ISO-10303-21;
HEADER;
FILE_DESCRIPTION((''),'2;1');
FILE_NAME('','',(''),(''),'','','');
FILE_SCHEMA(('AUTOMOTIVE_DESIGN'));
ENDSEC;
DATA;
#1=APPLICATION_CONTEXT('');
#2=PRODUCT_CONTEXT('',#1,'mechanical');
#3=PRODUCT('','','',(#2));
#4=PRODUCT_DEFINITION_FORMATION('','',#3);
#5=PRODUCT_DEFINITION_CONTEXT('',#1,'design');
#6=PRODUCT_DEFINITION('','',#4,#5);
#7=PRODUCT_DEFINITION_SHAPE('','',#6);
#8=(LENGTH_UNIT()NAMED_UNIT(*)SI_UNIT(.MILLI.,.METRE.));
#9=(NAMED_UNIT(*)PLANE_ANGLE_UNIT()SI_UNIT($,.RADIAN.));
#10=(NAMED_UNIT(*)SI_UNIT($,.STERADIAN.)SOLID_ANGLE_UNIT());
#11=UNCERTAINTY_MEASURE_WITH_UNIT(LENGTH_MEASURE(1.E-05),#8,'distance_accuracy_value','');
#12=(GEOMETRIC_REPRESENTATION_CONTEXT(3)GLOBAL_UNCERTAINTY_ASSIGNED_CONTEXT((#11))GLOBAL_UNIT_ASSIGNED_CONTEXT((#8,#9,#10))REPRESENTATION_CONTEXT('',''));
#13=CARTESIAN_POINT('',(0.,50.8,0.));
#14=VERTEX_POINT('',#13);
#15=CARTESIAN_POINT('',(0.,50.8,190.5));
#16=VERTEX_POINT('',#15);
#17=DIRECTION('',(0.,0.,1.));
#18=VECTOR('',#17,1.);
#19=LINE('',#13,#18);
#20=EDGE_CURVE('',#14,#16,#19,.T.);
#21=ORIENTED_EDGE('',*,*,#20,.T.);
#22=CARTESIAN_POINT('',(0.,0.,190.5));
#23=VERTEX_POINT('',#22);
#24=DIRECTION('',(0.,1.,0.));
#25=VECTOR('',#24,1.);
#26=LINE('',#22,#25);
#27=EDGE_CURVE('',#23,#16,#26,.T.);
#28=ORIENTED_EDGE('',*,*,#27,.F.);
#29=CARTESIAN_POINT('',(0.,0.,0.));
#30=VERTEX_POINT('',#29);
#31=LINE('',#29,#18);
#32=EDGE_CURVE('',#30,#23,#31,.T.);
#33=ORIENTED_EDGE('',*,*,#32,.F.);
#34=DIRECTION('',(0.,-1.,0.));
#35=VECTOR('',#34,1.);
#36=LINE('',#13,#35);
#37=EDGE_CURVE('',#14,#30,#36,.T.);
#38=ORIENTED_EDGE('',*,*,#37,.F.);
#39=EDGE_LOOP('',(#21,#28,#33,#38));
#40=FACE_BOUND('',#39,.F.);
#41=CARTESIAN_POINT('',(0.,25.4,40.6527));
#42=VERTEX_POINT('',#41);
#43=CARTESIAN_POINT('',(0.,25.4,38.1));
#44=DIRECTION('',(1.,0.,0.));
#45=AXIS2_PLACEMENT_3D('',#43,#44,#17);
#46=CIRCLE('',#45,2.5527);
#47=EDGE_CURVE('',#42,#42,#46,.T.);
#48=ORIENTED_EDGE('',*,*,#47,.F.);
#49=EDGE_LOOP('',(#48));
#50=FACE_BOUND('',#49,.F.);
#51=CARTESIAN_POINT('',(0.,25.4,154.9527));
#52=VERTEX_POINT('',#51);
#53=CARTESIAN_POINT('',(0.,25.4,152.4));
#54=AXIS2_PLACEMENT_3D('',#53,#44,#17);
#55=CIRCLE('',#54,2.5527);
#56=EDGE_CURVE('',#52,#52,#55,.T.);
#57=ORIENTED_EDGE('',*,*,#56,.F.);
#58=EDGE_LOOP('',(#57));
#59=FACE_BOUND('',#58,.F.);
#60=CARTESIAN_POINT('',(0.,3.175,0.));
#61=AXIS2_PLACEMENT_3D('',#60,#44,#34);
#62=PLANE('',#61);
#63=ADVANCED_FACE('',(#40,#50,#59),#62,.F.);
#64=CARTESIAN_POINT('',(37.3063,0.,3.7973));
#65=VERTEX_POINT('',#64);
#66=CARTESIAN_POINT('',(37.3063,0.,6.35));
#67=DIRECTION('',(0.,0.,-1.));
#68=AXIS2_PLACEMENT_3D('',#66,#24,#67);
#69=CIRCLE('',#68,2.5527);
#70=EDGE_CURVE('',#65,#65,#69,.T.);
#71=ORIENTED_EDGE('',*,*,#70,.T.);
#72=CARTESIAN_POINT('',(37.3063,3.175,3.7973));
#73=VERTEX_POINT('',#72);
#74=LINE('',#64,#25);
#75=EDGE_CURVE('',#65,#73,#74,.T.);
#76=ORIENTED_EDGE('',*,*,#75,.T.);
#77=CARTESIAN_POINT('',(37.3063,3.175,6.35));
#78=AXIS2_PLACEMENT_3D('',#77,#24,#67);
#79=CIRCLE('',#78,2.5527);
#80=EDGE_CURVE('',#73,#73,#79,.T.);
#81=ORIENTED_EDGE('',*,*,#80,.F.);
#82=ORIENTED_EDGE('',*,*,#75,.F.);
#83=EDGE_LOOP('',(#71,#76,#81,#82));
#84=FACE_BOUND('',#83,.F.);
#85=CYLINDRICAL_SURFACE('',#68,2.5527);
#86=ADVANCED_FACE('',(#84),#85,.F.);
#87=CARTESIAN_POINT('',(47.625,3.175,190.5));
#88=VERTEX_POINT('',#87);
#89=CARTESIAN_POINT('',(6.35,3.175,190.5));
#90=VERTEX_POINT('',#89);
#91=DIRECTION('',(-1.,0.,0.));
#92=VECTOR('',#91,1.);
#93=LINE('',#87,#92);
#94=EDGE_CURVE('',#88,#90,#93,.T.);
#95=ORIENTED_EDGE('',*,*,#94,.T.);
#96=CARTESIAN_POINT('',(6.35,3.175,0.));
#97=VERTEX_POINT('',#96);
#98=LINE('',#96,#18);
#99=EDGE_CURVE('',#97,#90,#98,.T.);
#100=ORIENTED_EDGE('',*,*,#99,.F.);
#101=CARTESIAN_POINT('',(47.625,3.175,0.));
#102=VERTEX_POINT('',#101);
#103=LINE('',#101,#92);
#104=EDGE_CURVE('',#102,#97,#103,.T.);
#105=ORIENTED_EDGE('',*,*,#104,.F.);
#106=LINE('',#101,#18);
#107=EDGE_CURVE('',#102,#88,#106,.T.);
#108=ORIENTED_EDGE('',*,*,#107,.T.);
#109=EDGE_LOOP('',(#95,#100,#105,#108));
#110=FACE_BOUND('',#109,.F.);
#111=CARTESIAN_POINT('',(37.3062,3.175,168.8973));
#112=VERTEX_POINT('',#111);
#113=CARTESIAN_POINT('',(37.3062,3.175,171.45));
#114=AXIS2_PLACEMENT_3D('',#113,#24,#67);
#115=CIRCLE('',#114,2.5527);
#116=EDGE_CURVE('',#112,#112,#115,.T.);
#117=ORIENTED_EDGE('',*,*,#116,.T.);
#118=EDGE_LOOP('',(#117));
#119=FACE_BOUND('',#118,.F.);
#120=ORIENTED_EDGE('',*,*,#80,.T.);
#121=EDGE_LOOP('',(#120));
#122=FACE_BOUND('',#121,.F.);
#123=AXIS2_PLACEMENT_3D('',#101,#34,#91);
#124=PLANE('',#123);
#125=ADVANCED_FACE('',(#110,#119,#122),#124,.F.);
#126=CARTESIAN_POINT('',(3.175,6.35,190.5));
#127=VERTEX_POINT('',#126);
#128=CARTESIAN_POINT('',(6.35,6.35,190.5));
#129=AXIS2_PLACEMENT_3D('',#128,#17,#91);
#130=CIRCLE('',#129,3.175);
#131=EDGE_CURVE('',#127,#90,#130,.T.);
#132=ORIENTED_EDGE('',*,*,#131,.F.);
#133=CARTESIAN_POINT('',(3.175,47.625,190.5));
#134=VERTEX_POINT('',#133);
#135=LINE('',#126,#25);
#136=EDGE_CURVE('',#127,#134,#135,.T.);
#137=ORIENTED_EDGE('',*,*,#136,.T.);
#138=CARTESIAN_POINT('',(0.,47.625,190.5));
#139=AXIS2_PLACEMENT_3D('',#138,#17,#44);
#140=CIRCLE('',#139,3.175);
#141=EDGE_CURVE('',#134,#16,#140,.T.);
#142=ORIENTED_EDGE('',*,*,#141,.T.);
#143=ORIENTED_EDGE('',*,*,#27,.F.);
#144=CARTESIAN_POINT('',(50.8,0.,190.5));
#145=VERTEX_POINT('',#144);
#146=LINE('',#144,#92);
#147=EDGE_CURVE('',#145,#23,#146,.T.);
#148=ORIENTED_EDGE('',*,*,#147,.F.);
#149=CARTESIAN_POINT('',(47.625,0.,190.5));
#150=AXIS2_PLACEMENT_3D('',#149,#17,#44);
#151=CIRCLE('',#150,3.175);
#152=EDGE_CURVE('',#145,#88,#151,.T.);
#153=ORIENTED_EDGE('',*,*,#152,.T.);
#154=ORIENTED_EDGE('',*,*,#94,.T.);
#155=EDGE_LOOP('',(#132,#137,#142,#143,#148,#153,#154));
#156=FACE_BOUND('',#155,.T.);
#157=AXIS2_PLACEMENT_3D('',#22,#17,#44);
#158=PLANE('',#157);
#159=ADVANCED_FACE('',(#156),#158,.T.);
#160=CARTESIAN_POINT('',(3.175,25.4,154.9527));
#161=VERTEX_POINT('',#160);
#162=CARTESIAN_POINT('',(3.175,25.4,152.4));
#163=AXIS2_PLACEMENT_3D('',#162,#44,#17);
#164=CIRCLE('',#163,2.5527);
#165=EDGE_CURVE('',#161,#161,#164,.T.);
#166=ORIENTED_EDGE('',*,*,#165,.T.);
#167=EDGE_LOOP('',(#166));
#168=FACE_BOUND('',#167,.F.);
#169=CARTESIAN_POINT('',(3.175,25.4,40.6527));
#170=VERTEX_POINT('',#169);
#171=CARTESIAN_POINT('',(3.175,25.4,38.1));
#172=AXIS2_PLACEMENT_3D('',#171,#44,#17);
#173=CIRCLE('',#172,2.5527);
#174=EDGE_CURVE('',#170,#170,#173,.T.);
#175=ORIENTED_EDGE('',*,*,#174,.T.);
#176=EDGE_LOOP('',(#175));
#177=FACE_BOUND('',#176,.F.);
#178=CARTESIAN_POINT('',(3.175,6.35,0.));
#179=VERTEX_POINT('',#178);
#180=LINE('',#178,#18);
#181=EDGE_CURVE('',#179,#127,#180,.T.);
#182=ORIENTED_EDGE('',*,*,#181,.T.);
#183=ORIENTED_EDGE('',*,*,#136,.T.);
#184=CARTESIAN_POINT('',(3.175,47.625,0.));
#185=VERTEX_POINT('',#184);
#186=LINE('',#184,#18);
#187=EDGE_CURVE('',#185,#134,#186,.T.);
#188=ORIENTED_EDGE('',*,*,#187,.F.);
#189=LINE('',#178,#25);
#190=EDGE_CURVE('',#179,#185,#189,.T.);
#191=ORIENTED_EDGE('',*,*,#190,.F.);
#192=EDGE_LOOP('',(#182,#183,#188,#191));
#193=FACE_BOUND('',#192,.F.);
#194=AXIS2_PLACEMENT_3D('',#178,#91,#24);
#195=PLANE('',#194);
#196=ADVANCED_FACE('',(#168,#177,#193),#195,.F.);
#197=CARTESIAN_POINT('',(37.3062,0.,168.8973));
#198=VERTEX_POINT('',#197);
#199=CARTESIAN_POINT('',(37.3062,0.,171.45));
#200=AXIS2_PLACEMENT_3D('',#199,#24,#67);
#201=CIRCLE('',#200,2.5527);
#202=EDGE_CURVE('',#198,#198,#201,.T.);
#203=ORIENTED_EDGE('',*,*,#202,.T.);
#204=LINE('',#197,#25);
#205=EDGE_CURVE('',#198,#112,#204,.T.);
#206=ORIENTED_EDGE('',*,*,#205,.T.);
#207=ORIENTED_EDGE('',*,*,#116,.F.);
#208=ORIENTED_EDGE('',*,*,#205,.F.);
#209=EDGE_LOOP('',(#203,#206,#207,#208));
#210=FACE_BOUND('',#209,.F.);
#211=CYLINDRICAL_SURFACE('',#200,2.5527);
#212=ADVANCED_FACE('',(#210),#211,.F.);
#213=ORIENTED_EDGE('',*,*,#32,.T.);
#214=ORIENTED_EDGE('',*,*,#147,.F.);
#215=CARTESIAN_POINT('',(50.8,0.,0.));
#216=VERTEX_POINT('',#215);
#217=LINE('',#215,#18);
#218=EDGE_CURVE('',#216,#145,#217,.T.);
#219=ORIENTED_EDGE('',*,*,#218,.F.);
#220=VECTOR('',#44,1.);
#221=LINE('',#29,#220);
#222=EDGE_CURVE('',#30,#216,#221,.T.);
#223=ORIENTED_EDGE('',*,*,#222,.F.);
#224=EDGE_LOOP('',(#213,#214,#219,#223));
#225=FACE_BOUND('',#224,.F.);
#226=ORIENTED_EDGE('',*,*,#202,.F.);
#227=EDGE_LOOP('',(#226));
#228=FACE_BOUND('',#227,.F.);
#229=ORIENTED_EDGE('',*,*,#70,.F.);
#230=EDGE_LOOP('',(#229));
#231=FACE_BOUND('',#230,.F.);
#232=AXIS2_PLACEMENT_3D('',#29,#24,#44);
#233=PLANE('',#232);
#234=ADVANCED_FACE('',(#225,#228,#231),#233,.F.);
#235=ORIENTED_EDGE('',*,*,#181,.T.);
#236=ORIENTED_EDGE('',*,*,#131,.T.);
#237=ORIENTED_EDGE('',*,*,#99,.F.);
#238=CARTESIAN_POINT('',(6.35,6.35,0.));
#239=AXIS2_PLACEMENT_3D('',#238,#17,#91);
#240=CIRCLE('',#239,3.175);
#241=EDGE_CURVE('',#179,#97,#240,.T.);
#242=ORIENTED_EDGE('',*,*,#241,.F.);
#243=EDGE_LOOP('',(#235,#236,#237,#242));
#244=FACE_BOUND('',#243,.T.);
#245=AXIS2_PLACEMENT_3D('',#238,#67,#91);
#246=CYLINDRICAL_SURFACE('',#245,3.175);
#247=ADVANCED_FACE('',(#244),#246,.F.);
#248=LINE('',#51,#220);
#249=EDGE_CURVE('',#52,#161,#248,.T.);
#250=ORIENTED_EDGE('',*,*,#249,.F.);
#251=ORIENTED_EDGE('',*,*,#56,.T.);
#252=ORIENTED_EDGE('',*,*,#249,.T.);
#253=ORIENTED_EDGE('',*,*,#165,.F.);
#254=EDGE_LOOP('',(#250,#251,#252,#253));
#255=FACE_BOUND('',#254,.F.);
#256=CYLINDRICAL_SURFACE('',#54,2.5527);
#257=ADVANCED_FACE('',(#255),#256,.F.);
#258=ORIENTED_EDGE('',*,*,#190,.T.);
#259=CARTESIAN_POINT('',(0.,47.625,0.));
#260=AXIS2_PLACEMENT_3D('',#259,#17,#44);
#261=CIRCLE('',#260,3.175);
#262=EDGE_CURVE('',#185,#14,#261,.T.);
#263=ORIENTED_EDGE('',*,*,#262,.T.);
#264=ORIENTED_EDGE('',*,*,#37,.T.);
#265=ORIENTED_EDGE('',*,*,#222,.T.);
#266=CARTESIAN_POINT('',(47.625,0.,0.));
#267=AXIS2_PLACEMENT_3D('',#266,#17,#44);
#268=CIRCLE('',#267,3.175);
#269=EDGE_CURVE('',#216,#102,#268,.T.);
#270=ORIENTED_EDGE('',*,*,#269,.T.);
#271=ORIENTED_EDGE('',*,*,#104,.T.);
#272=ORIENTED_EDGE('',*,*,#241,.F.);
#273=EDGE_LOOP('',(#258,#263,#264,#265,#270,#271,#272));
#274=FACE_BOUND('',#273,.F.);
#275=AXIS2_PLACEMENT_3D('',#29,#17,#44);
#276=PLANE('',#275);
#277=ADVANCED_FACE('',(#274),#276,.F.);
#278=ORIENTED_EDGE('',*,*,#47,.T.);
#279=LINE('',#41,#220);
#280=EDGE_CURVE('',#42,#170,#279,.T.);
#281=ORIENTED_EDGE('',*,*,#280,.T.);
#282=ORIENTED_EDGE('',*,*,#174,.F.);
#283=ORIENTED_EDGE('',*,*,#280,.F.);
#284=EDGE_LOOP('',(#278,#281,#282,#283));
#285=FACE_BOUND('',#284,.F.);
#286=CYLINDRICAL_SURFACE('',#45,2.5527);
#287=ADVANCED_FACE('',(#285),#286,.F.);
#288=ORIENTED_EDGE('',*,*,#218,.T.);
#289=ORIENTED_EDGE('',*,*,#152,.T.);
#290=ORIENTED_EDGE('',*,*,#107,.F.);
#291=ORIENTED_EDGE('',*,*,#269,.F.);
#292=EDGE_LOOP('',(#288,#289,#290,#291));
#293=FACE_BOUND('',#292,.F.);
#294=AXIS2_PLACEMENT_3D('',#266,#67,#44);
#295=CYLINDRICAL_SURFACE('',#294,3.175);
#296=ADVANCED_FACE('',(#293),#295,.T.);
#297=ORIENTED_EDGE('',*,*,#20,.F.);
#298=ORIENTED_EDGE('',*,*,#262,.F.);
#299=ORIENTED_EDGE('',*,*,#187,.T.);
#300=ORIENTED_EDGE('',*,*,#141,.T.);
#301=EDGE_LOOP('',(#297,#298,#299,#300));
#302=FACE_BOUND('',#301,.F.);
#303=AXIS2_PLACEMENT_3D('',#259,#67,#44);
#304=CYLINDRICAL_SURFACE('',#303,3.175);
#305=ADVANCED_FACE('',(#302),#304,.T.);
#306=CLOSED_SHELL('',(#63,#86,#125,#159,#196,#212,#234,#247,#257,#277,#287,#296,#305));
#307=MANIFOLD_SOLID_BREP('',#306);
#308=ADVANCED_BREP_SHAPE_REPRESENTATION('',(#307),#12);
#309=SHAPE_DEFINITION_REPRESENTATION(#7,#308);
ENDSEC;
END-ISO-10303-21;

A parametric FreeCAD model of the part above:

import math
import FreeCAD as App
import Part
import Sketcher
from FreeCAD import Vector
Q = App.Units.Quantity

doc = App.newDocument("Part")
body = doc.addObject("PartDesign::Body", "Body")

sketch1 = doc.addObject("Sketcher::SketchObject", "Sketch")
body.addObject(sketch1)
sketch1.AttachmentSupport = (doc.XY_Plane, [""])
sketch1.MapMode = "FlatFace"
sketch1.addGeometry([
    Part.LineSegment(Vector(0, 50.8, 0), Vector(0, 0, 0)),
    Part.LineSegment(Vector(0, 0, 0), Vector(50.8, 0, 0)),
    Part.ArcOfCircle(Part.Circle(Vector(47.6, 0, 0), Vector(0, 0, 1), 3.2), math.radians(0), math.radians(90)),
    Part.LineSegment(Vector(47.6, 3.2, 0), Vector(6.3, 3.2, 0)),
    Part.ArcOfCircle(Part.Circle(Vector(6.3, 6.3, 0), Vector(0, 0, 1), 3.2), math.radians(180), math.radians(270)),
    Part.LineSegment(Vector(3.2, 6.3, 0), Vector(3.2, 47.6, 0)),
    Part.ArcOfCircle(Part.Circle(Vector(0, 47.6, 0), Vector(0, 0, 1), 3.2), math.radians(0), math.radians(90)),
], False)
sketch1.addConstraint([
    Sketcher.Constraint("Coincident", 0, 2, 1, 1),
    Sketcher.Constraint("Coincident", 1, 2, 2, 1),
    Sketcher.Constraint("Tangent", 2, 2, 3, 1),
    Sketcher.Constraint("Tangent", 3, 2, 4, 2),
    Sketcher.Constraint("Tangent", 4, 1, 5, 1),
    Sketcher.Constraint("Tangent", 5, 2, 6, 1),
    Sketcher.Constraint("Coincident", 6, 2, 0, 1),
    Sketcher.Constraint("Vertical", 0),
    Sketcher.Constraint("Horizontal", 1),
    Sketcher.Constraint("Horizontal", 3),
    Sketcher.Constraint("Vertical", 5),
    Sketcher.Constraint("Coincident", 0, 2, -1, 1),
    Sketcher.Constraint("Equal", 2, 4),
    Sketcher.Constraint("Equal", 4, 6),
    Sketcher.Constraint("PointOnObject", 2, 3, -1),
    Sketcher.Constraint("PointOnObject", 6, 3, -2),
    Sketcher.Constraint("Equal", 1, 0),
    Sketcher.Constraint("DistanceX", 1, 1, 1, 2, Q("2 in")),
    Sketcher.Constraint("Radius", 2, Q("0.125 in")),
])
pad1 = doc.addObject("PartDesign::Pad", "Pad")
body.addObject(pad1)
pad1.Profile = sketch1
pad1.Length = Q("7.5 in")

sketch2 = doc.addObject("Sketcher::SketchObject", "Sketch001")
body.addObject(sketch2)
sketch2.AttachmentSupport = (doc.YZ_Plane, [""])
sketch2.MapMode = "FlatFace"
sketch2.addGeometry([
    Part.Circle(Vector(25.4, 38.1, 0), Vector(0, 0, 1), 2.6),
    Part.Circle(Vector(25.4, 152.4, 0), Vector(0, 0, 1), 2.6),
], False)
sketch2.addConstraint([
    Sketcher.Constraint("Equal", 0, 1),
    Sketcher.Constraint("Vertical", 0, 3, 1, 3),
    Sketcher.Constraint("Diameter", 0, Q("0.201 in")),
    Sketcher.Constraint("DistanceX", -1, 1, 0, 3, Q("1 in")),
    Sketcher.Constraint("DistanceY", -1, 1, 1, 3, Q("6 in")),
    Sketcher.Constraint("DistanceY", -1, 1, 0, 3, Q("1.5 in")),
])
doc.recompute()
hole = doc.addObject("PartDesign::Hole", "Hole")
body.addObject(hole)
hole.Profile = sketch2
hole.ThreadType = "None"
hole.Diameter = Q("0.201 in")
hole.DepthType = "ThroughAll"
hole.Reversed = True

sketch3 = doc.addObject("Sketcher::SketchObject", "Sketch002")
body.addObject(sketch3)
sketch3.AttachmentSupport = (doc.XZ_Plane, [""])
sketch3.MapMode = "FlatFace"
sketch3.addGeometry([
    Part.Circle(Vector(37.3, 171.4, 0), Vector(0, 0, 1), 2.6),
    Part.Circle(Vector(37.3, 6.3, 0), Vector(0, 0, 1), 2.6),
], False)
sketch3.addConstraint([
    Sketcher.Constraint("Equal", 0, 1),
    Sketcher.Constraint("Vertical", 0, 3, 1, 3),
    Sketcher.Constraint("Diameter", 0, Q("0.201 in")),
    Sketcher.Constraint("DistanceY", 1, 3, 0, 3, Q("6.5 in")),
    Sketcher.Constraint("DistanceY", -1, 1, 0, 3, Q("6.75 in")),
    Sketcher.Constraint("DistanceX", -1, 1, 0, 3, Q("1.468748 in")),
])
doc.recompute()
hole2 = doc.addObject("PartDesign::Hole", "Hole001")
body.addObject(hole2)
hole2.Profile = sketch3
hole2.ThreadType = "None"
hole2.Diameter = Q("0.201 in")
hole2.DepthType = "ThroughAll"

doc.recompute()
